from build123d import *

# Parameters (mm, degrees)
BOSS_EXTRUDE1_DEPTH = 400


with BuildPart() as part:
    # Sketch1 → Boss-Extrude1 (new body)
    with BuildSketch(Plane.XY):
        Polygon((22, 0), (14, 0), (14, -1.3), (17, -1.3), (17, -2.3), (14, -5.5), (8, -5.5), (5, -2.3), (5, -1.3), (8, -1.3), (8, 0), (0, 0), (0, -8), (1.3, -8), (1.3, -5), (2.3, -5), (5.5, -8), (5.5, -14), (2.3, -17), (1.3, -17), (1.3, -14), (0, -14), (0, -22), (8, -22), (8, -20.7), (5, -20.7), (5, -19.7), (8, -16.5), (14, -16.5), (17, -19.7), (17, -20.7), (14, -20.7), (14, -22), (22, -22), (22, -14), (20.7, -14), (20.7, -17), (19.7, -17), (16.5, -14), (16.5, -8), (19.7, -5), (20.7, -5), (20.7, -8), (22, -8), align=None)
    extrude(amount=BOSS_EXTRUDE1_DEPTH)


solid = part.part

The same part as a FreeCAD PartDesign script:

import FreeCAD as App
import Part
import Sketcher

V = App.Vector
Q = App.Units.Quantity

doc = App.newDocument("Part")
body = doc.addObject("PartDesign::Body", "Body")

# Sketch on XY plane
sketch1 = body.newObject("Sketcher::SketchObject", "Sketch")
sketch1.AttachmentSupport = (doc.getObject("XY_Plane"), [""])
sketch1.MapMode = "FlatFace"
sketch1.addGeometry([
    Part.LineSegment(V(22, 0, 0), V(14, 0, 0)),  # 0
    Part.LineSegment(V(14, 0, 0), V(14, -1.3, 0)),  # 1
    Part.LineSegment(V(14, -1.3, 0), V(17, -1.3, 0)),  # 2
    Part.LineSegment(V(17, -1.3, 0), V(17, -2.3, 0)),  # 3
    Part.LineSegment(V(17, -2.3, 0), V(14, -5.5, 0)),  # 4
    Part.LineSegment(V(14, -5.5, 0), V(8, -5.5, 0)),  # 5
    Part.LineSegment(V(8, -5.5, 0), V(5, -2.3, 0)),  # 6
    Part.LineSegment(V(5, -2.3, 0), V(5, -1.3, 0)),  # 7
    Part.LineSegment(V(5, -1.3, 0), V(8, -1.3, 0)),  # 8
    Part.LineSegment(V(8, -1.3, 0), V(8, 0, 0)),  # 9
    Part.LineSegment(V(8, 0, 0), V(0, 0, 0)),  # 10
    Part.LineSegment(V(0, 0, 0), V(0, -8, 0)),  # 11
    Part.LineSegment(V(0, -8, 0), V(1.3, -8, 0)),  # 12
    Part.LineSegment(V(1.3, -8, 0), V(1.3, -5, 0)),  # 13
    Part.LineSegment(V(1.3, -5, 0), V(2.3, -5, 0)),  # 14
    Part.LineSegment(V(2.3, -5, 0), V(5.5, -8, 0)),  # 15
    Part.LineSegment(V(5.5, -8, 0), V(5.5, -14, 0)),  # 16
    Part.LineSegment(V(5.5, -14, 0), V(2.3, -17, 0)),  # 17
    Part.LineSegment(V(2.3, -17, 0), V(1.3, -17, 0)),  # 18
    Part.LineSegment(V(1.3, -17, 0), V(1.3, -14, 0)),  # 19
    Part.LineSegment(V(1.3, -14, 0), V(0, -14, 0)),  # 20
    Part.LineSegment(V(0, -14, 0), V(0, -22, 0)),  # 21
    Part.LineSegment(V(0, -22, 0), V(8, -22, 0)),  # 22
    Part.LineSegment(V(8, -22, 0), V(8, -20.7, 0)),  # 23
    Part.LineSegment(V(8, -20.7, 0), V(5, -20.7, 0)),  # 24
    Part.LineSegment(V(5, -20.7, 0), V(5, -19.7, 0)),  # 25
    Part.LineSegment(V(5, -19.7, 0), V(8, -16.5, 0)),  # 26
    Part.LineSegment(V(8, -16.5, 0), V(14, -16.5, 0)),  # 27
    Part.LineSegment(V(14, -16.5, 0), V(17, -19.7, 0)),  # 28
    Part.LineSegment(V(17, -19.7, 0), V(17, -20.7, 0)),  # 29
    Part.LineSegment(V(17, -20.7, 0), V(14, -20.7, 0)),  # 30
    Part.LineSegment(V(14, -20.7, 0), V(14, -22, 0)),  # 31
    Part.LineSegment(V(14, -22, 0), V(22, -22, 0)),  # 32
    Part.LineSegment(V(22, -22, 0), V(22, -14, 0)),  # 33
    Part.LineSegment(V(22, -14, 0), V(20.7, -14, 0)),  # 34
    Part.LineSegment(V(20.7, -14, 0), V(20.7, -17, 0)),  # 35
    Part.LineSegment(V(20.7, -17, 0), V(19.7, -17, 0)),  # 36
    Part.LineSegment(V(19.7, -17, 0), V(16.5, -14, 0)),  # 37
    Part.LineSegment(V(16.5, -14, 0), V(16.5, -8, 0)),  # 38
    Part.LineSegment(V(16.5, -8, 0), V(19.7, -5, 0)),  # 39
    Part.LineSegment(V(19.7, -5, 0), V(20.7, -5, 0)),  # 40
    Part.LineSegment(V(20.7, -5, 0), V(20.7, -8, 0)),  # 41
    Part.LineSegment(V(20.7, -8, 0), V(22, -8, 0)),  # 42
    Part.LineSegment(V(22, -8, 0), V(22, 0, 0)),  # 43
], False)
sketch1.addConstraint([
    Sketcher.Constraint("Coincident", 0, 2, 1, 1),
    Sketcher.Constraint("Coincident", 1, 2, 2, 1),
    Sketcher.Constraint("Coincident", 2, 2, 3, 1),
    Sketcher.Constraint("Coincident", 3, 2, 4, 1),
    Sketcher.Constraint("Coincident", 4, 2, 5, 1),
    Sketcher.Constraint("Coincident", 5, 2, 6, 1),
    Sketcher.Constraint("Coincident", 6, 2, 7, 1),
    Sketcher.Constraint("Coincident", 7, 2, 8, 1),
    Sketcher.Constraint("Coincident", 8, 2, 9, 1),
    Sketcher.Constraint("Coincident", 9, 2, 10, 1),
    Sketcher.Constraint("Coincident", 10, 2, 11, 1),
    Sketcher.Constraint("Coincident", 11, 2, 12, 1),
    Sketcher.Constraint("Coincident", 12, 2, 13, 1),
    Sketcher.Constraint("Coincident", 13, 2, 14, 1),
    Sketcher.Constraint("Coincident", 14, 2, 15, 1),
    Sketcher.Constraint("Coincident", 15, 2, 16, 1),
    Sketcher.Constraint("Coincident", 16, 2, 17, 1),
    Sketcher.Constraint("Coincident", 17, 2, 18, 1),
    Sketcher.Constraint("Coincident", 18, 2, 19, 1),
    Sketcher.Constraint("Coincident", 19, 2, 20, 1),
    Sketcher.Constraint("Coincident", 20, 2, 21, 1),
    Sketcher.Constraint("Coincident", 21, 2, 22, 1),
    Sketcher.Constraint("Coincident", 22, 2, 23, 1),
    Sketcher.Constraint("Coincident", 23, 2, 24, 1),
    Sketcher.Constraint("Coincident", 24, 2, 25, 1),
    Sketcher.Constraint("Coincident", 25, 2, 26, 1),
    Sketcher.Constraint("Coincident", 26, 2, 27, 1),
    Sketcher.Constraint("Coincident", 27, 2, 28, 1),
    Sketcher.Constraint("Coincident", 28, 2, 29, 1),
    Sketcher.Constraint("Coincident", 29, 2, 30, 1),
    Sketcher.Constraint("Coincident", 30, 2, 31, 1),
    Sketcher.Constraint("Coincident", 31, 2, 32, 1),
    Sketcher.Constraint("Coincident", 32, 2, 33, 1),
    Sketcher.Constraint("Coincident", 33, 2, 34, 1),
    Sketcher.Constraint("Coincident", 34, 2, 35, 1),
    Sketcher.Constraint("Coincident", 35, 2, 36, 1),
    Sketcher.Constraint("Coincident", 36, 2, 37, 1),
    Sketcher.Constraint("Coincident", 37, 2, 38, 1),
    Sketcher.Constraint("Coincident", 38, 2, 39, 1),
    Sketcher.Constraint("Coincident", 39, 2, 40, 1),
    Sketcher.Constraint("Coincident", 40, 2, 41, 1),
    Sketcher.Constraint("Coincident", 41, 2, 42, 1),
    Sketcher.Constraint("Coincident", 42, 2, 43, 1),
    Sketcher.Constraint("Coincident", 43, 2, 0, 1),
    Sketcher.Constraint("Horizontal", 0),
    Sketcher.Constraint("Vertical", 1),
    Sketcher.Constraint("Horizontal", 2),
    Sketcher.Constraint("Vertical", 3),
    Sketcher.Constraint("Horizontal", 5),
    Sketcher.Constraint("Vertical", 7),
    Sketcher.Constraint("Horizontal", 8),
    Sketcher.Constraint("Vertical", 9),
    Sketcher.Constraint("Horizontal", 10),
    Sketcher.Constraint("Vertical", 11),
    Sketcher.Constraint("Horizontal", 12),
    Sketcher.Constraint("Vertical", 13),
    Sketcher.Constraint("Horizontal", 14),
    Sketcher.Constraint("Vertical", 16),
    Sketcher.Constraint("Horizontal", 18),
    Sketcher.Constraint("Vertical", 19),
    Sketcher.Constraint("Horizontal", 20),
    Sketcher.Constraint("Vertical", 21),
    Sketcher.Constraint("Horizontal", 22),
    Sketcher.Constraint("Vertical", 23),
    Sketcher.Constraint("Horizontal", 24),
    Sketcher.Constraint("Vertical", 25),
    Sketcher.Constraint("Horizontal", 27),
    Sketcher.Constraint("Vertical", 29),
    Sketcher.Constraint("Horizontal", 30),
    Sketcher.Constraint("Vertical", 31),
    Sketcher.Constraint("Horizontal", 32),
    Sketcher.Constraint("Vertical", 33),
    Sketcher.Constraint("Horizontal", 34),
    Sketcher.Constraint("Vertical", 35),
    Sketcher.Constraint("Horizontal", 36),
    Sketcher.Constraint("Vertical", 38),
    Sketcher.Constraint("Horizontal", 40),
    Sketcher.Constraint("Vertical", 41),
    Sketcher.Constraint("Horizontal", 42),
    Sketcher.Constraint("Vertical", 43),
    Sketcher.Constraint("Coincident", 10, 2, -1, 1),
    Sketcher.Constraint("PointOnObject", 0, 2, -1),
    Sketcher.Constraint("PointOnObject", 20, 2, -2),
    Sketcher.Constraint("Perpendicular", 4, 15),
    Sketcher.Constraint("Perpendicular", 6, 17),
    Sketcher.Constraint("Perpendicular", 15, 26),
    Sketcher.Constraint("Perpendicular", 17, 28),
    Sketcher.Constraint("Perpendicular", 26, 37),
    Sketcher.Constraint("Perpendicular", 28, 39),
    Sketcher.Constraint("Horizontal", 3, 2, 6, 2),
    Sketcher.Constraint("Horizontal", 2, 2, 7, 2),
    Sketcher.Constraint("Horizontal", 12, 2, 15, 2),
    Sketcher.Constraint("Horizontal", 16, 2, 19, 2),
    Sketcher.Constraint("Horizontal", 25, 2, 28, 2),
    Sketcher.Constraint("Horizontal", 24, 2, 29, 2),
    Sketcher.Constraint("Horizontal", 22, 2, 31, 2),
    Sketcher.Constraint("Horizontal", 20, 2, 33, 2),
    Sketcher.Constraint("Horizontal", 18, 2, 35, 2),
    Sketcher.Constraint("Horizontal", 34, 2, 37, 2),
    Sketcher.Constraint("Horizontal", 15, 2, 38, 2),
    Sketcher.Constraint("Horizontal", 14, 2, 39, 2),
    Sketcher.Constraint("Horizontal", 38, 2, 41, 2),
    Sketcher.Constraint("Vertical", 1, 2, 4, 2),
    Sketcher.Constraint("Vertical", 5, 2, 8, 2),
    Sketcher.Constraint("Vertical", 14, 2, 17, 2),
    Sketcher.Constraint("Vertical", 13, 2, 18, 2),
    Sketcher.Constraint("Vertical", 9, 2, 22, 2),
    Sketcher.Constraint("Vertical", 7, 2, 24, 2),
    Sketcher.Constraint("Vertical", 23, 2, 26, 2),
    Sketcher.Constraint("Vertical", 4, 2, 27, 2),
    Sketcher.Constraint("Vertical", 3, 2, 28, 2),
    Sketcher.Constraint("Vertical", 27, 2, 30, 2),
    Sketcher.Constraint("Vertical", 35, 2, 40, 2),
    Sketcher.Constraint("Vertical", 33, 2, 42, 2),
    Sketcher.Constraint("Equal", 0, 10),
    Sketcher.Constraint("Equal", 20, 34),
    Sketcher.Constraint("Equal", 18, 36),
    Sketcher.Constraint("Equal", 42, 1),
    Sketcher.Constraint("Equal", 40, 3),
    Sketcher.Constraint("Equal", 32, 11),
    Sketcher.Constraint("Equal", 30, 13),
    Sketcher.Constraint("Equal", 27, 16),
    Sketcher.Constraint("Equal", 11, 21),
    Sketcher.Constraint("Equal", 9, 23),
    Sketcher.Constraint("Equal", 7, 25),
    Sketcher.Constraint("DistanceX", 0, 2, 0, 1, Q("8 mm")),
    Sketcher.Constraint("DistanceX", 2, 1, 2, 2, Q("3 mm")),
    Sketcher.Constraint("DistanceX", 5, 2, 5, 1, Q("6 mm")),
    Sketcher.Constraint("DistanceX", 14, 1, 14, 2, Q("1 mm")),
    Sketcher.Constraint("DistanceX", 12, 1, 12, 2, Q("1.3 mm")),
    Sketcher.Constraint("DistanceY", 4, 2, -1, 1, Q("5.5 mm")),
])
pad1 = body.newObject("PartDesign::Pad", "Pad")
pad1.Profile = sketch1
pad1.Length = 400

doc.recompute()
